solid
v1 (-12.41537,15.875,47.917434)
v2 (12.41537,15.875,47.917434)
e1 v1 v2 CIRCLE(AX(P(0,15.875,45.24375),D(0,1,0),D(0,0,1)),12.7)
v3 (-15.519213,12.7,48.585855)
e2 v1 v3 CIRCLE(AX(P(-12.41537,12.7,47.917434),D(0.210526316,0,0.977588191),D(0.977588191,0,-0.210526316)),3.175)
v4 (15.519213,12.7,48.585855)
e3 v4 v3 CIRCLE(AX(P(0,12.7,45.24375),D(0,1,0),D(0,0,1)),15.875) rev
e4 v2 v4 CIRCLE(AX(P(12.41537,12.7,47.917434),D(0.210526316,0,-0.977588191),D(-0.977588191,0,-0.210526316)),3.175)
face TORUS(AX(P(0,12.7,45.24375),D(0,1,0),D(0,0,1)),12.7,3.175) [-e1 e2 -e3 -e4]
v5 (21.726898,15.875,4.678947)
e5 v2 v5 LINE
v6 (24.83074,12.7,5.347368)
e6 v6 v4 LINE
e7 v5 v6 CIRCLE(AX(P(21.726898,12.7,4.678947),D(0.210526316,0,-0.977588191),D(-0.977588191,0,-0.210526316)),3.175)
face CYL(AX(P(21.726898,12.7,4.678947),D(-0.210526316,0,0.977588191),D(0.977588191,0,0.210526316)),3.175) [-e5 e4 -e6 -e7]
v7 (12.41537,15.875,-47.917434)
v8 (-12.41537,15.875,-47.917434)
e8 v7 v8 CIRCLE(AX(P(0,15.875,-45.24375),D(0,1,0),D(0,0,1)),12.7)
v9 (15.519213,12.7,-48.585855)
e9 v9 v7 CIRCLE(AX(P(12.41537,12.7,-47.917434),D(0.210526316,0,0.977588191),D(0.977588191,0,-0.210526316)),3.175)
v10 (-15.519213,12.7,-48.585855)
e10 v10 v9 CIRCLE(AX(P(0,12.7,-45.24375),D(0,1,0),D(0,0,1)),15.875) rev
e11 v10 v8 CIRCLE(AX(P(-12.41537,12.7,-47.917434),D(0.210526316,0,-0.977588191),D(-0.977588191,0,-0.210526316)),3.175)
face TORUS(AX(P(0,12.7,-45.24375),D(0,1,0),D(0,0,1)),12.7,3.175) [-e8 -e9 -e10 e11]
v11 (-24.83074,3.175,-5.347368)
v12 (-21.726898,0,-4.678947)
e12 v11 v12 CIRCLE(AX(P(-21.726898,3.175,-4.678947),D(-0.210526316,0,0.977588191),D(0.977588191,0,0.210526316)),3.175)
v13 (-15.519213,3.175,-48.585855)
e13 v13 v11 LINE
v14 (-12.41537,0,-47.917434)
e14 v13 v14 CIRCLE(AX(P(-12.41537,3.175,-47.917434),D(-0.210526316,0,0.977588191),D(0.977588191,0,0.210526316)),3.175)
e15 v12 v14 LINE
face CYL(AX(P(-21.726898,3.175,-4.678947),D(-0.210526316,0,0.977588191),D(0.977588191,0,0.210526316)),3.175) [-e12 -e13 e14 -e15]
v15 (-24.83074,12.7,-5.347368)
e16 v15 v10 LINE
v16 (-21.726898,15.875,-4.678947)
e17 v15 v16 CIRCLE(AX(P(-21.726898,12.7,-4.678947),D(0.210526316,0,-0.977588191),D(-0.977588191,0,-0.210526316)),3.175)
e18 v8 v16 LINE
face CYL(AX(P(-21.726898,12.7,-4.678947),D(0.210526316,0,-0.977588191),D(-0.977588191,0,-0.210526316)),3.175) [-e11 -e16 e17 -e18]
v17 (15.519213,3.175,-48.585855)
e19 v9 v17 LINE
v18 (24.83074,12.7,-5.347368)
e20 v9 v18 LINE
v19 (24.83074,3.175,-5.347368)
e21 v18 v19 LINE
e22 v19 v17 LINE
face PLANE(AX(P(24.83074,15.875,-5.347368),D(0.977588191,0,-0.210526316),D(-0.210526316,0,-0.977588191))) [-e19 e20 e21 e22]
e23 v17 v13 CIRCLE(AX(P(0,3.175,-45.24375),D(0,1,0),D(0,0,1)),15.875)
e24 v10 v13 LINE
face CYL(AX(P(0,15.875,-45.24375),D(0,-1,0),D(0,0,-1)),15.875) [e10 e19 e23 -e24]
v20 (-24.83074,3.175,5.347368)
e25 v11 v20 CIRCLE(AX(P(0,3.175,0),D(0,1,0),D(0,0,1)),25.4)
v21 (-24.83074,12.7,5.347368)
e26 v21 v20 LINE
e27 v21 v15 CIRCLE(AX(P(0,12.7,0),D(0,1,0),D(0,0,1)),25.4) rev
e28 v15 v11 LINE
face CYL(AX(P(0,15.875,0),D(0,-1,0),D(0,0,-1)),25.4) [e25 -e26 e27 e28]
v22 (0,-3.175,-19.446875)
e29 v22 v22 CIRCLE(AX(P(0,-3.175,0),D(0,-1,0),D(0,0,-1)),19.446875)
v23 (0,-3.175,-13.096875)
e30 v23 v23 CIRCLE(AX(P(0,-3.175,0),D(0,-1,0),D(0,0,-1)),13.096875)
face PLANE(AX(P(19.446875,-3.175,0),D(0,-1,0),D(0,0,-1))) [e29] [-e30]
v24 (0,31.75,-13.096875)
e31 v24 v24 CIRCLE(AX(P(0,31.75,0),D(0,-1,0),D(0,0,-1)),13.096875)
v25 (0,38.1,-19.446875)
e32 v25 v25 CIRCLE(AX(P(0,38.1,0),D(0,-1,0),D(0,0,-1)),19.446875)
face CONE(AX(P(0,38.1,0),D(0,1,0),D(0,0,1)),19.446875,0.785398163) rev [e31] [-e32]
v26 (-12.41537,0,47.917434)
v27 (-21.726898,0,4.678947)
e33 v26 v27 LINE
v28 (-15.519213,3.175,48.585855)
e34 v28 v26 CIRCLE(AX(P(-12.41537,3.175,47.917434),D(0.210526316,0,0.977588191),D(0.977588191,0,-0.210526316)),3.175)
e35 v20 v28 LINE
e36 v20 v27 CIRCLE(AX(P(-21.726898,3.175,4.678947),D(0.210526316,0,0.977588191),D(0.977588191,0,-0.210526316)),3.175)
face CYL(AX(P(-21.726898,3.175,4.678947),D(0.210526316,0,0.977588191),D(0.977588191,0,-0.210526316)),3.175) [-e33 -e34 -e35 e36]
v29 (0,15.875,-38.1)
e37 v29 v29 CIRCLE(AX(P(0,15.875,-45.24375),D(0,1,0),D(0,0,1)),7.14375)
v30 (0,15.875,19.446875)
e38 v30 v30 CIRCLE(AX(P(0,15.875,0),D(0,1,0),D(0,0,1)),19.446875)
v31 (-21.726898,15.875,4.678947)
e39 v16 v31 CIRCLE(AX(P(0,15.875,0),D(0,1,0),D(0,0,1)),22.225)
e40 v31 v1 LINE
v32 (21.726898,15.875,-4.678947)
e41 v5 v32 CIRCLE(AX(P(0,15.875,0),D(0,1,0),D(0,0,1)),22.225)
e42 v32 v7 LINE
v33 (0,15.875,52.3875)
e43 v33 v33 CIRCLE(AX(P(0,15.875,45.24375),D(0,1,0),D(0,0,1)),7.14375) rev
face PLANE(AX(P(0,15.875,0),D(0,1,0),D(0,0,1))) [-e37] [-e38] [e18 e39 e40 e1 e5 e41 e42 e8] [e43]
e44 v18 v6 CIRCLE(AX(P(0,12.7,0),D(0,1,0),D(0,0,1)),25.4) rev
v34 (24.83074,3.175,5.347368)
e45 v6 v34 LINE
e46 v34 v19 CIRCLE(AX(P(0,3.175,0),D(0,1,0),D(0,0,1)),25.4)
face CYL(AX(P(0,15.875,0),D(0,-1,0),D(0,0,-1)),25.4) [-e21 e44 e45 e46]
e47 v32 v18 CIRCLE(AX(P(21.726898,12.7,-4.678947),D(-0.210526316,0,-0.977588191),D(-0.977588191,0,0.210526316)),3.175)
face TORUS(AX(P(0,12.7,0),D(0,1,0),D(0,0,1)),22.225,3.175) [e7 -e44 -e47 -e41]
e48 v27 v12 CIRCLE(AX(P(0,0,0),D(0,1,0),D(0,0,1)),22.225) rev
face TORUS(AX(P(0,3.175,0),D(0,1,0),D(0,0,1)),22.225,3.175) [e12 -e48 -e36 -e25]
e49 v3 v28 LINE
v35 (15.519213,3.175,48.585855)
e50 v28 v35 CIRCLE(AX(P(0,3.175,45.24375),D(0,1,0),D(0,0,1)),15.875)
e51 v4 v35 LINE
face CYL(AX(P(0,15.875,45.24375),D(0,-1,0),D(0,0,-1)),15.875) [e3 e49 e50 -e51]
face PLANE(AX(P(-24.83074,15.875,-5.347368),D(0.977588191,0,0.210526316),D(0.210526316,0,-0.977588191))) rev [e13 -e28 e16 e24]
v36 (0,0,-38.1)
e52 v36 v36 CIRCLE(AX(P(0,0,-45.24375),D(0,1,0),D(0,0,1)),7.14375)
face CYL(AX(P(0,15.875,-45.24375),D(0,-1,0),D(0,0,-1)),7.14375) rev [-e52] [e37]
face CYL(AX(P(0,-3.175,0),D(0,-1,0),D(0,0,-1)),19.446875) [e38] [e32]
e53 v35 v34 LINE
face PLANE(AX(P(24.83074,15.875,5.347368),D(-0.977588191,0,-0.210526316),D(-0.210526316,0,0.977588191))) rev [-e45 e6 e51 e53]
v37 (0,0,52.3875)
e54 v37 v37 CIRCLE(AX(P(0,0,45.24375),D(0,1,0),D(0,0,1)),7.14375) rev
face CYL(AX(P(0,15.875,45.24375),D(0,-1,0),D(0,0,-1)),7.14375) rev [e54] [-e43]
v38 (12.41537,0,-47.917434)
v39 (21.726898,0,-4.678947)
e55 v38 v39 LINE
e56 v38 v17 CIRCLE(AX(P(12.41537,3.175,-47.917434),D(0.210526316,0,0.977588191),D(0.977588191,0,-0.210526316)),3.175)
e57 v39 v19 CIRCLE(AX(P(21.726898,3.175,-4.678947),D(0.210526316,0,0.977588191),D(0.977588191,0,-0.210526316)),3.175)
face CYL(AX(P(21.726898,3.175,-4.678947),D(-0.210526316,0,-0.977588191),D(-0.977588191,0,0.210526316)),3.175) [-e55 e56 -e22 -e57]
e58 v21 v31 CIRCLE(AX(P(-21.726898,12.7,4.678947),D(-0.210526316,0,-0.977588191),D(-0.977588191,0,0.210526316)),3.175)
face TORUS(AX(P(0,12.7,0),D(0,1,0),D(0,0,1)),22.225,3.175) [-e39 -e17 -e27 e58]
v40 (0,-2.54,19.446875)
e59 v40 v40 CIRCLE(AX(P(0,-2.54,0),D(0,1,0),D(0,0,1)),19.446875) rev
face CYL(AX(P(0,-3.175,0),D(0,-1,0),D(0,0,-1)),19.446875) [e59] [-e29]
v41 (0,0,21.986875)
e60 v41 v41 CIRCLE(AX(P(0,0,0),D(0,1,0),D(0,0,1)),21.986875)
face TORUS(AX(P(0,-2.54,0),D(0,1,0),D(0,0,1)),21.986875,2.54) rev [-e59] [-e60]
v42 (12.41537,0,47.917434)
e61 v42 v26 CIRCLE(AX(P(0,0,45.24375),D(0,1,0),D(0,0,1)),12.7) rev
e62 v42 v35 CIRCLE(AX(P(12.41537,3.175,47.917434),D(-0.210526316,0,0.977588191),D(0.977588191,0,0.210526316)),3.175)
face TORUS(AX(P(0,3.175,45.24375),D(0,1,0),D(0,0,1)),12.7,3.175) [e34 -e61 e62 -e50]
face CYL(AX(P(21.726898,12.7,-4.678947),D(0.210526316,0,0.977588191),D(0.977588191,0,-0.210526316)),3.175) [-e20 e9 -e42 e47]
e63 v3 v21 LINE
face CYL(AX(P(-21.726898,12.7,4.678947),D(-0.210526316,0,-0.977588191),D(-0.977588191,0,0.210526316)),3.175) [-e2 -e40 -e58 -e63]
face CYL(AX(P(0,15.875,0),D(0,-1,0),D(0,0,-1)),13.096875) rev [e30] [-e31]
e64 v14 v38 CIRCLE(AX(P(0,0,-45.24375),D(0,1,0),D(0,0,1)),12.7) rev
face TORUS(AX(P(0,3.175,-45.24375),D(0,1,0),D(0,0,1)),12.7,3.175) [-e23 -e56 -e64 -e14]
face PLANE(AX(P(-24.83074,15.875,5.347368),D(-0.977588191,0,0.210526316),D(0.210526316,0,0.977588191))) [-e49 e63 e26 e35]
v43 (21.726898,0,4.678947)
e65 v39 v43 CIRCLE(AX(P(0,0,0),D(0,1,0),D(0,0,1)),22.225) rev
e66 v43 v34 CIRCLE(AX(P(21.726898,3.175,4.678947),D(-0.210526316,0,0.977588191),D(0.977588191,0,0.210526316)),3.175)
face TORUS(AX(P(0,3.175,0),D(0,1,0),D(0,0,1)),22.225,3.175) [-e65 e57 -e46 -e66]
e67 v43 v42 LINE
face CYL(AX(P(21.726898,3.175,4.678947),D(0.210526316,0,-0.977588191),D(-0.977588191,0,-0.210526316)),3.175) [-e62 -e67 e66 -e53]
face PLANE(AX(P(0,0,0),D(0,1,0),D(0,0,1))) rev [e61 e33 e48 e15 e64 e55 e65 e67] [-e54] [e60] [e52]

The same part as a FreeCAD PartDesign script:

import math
import FreeCAD as App
import Part
import Sketcher

V = App.Vector
Q = App.Units.Quantity


def edges_at(feature, points):
    """Names of the edges that pass closest to the given points."""
    edges = feature.Shape.Edges
    near = lambda p: min(range(len(edges)), key=lambda i: edges[i].distToShape(Part.Vertex(*p))[0])
    return sorted({f"Edge{near(p) + 1}" for p in points})


def add_polygon(sketch, points):
    """Adds a closed chain of lines whose ends are joined by coincident constraints."""
    first, n = sketch.GeometryCount, len(points)
    for a, b in zip(points, points[1:] + points[:1]):
        sketch.addGeometry(Part.LineSegment(App.Vector(*a, 0), App.Vector(*b, 0)), False)
    for i in range(n):
        sketch.addConstraint(Sketcher.Constraint("Coincident", first + i, 2, first + (i + 1) % n, 1))

doc = App.newDocument("Part")
body = doc.addObject("PartDesign::Body", "Body")

# Sketch on XZ plane
sketch1 = body.newObject("Sketcher::SketchObject", "Sketch")
sketch1.AttachmentSupport = (doc.getObject("XZ_Plane"), [""])
sketch1.MapMode = "FlatFace"
sketch1.addGeometry(Part.ArcOfCircle(Part.Circle(V(0, 45.24375, 0), V(0, 0, 1), 15.875), math.radians(12.153197), math.radians(167.846803)), False)
sketch1.addGeometry(Part.LineSegment(V(15.519213, 48.585855, 0), V(24.83074, 5.347368, 0)), False)
sketch1.addGeometry(Part.ArcOfCircle(Part.Circle(V(0, 0, 0), V(0, 0, 1), 25.4), math.radians(-12.153197), math.radians(12.153197)), False)
sketch1.addGeometry(Part.LineSegment(V(24.83074, -5.347368, 0), V(15.519213, -48.585855, 0)), False)
sketch1.addGeometry(Part.ArcOfCircle(Part.Circle(V(0, -45.24375, 0), V(0, 0, 1), 15.875), math.radians(-167.846803), math.radians(-12.153197)), False)
sketch1.addGeometry(Part.LineSegment(V(-15.519213, -48.585855, 0), V(-24.83074, -5.347368, 0)), False)
sketch1.addGeometry(Part.ArcOfCircle(Part.Circle(V(0, 0, 0), V(0, 0, 1), 25.4), math.radians(167.846803), math.radians(192.153197)), False)
sketch1.addGeometry(Part.LineSegment(V(-24.83074, 5.347368, 0), V(-15.519213, 48.585855, 0)), False)
sketch1.addGeometry(Part.Circle(V(0, 45.24375, 0), V(0, 0, 1), 7.14375), False)
sketch1.addGeometry(Part.Circle(V(0, 0, 0), V(0, 0, 1), 13.096875), False)
sketch1.addGeometry(Part.Circle(V(0, -45.24375, 0), V(0, 0, 1), 7.14375), False)
sketch1.addConstraint(Sketcher.Constraint("Tangent", 0, 1, 1, 1))
sketch1.addConstraint(Sketcher.Constraint("Tangent", 1, 2, 2, 2))
sketch1.addConstraint(Sketcher.Constraint("Tangent", 2, 1, 3, 1))
sketch1.addConstraint(Sketcher.Constraint("Tangent", 3, 2, 4, 2))
sketch1.addConstraint(Sketcher.Constraint("Tangent", 4, 1, 5, 1))
sketch1.addConstraint(Sketcher.Constraint("Tangent", 5, 2, 6, 2))
sketch1.addConstraint(Sketcher.Constraint("Tangent", 6, 1, 7, 1))
sketch1.addConstraint(Sketcher.Constraint("Tangent", 7, 2, 0, 2))
sketch1.addConstraint(Sketcher.Constraint("Coincident", 2, 3, -1, 1))
sketch1.addConstraint(Sketcher.Constraint("Coincident", 6, 3, -1, 1))
sketch1.addConstraint(Sketcher.Constraint("Coincident", 9, 3, -1, 1))
sketch1.addConstraint(Sketcher.Constraint("Coincident", 8, 3, 0, 3))
sketch1.addConstraint(Sketcher.Constraint("Coincident", 10, 3, 4, 3))
sketch1.addConstraint(Sketcher.Constraint("Equal", 0, 4))
sketch1.addConstraint(Sketcher.Constraint("Equal", 2, 6))
sketch1.addConstraint(Sketcher.Constraint("Equal", 8, 10))
sketch1.addConstraint(Sketcher.Constraint("Symmetric", 0, 3, 4, 3, -1, 1))
sketch1.addConstraint(Sketcher.Constraint("PointOnObject", 0, 3, -2))
sketch1.addConstraint(Sketcher.Constraint("Radius", 2, Q("1 in")))
sketch1.addConstraint(Sketcher.Constraint("Diameter", 8, Q("0.5625 in")))
sketch1.addConstraint(Sketcher.Constraint("Diameter", 9, Q("1.03125 in")))
sketch1.addConstraint(Sketcher.Constraint("Radius", 0, Q("0.625 in")))
sketch1.addConstraint(Sketcher.Constraint("DistanceY", -1, 1, 0, 3, Q("1.78125 in")))
pad1 = body.newObject("PartDesign::Pad", "Pad")
pad1.Profile = sketch1
pad1.Length = Q("0.625 in")
pad1.Reversed = True

# Sketch on XY plane
sketch2 = body.newObject("Sketcher::SketchObject", "Sketch001")
sketch2.AttachmentSupport = (doc.getObject("XY_Plane"), [""])
sketch2.MapMode = "FlatFace"
add_polygon(sketch2, [(19.446875, 38.1), (13.096875, 31.75), (13.096875, -3.175), (19.446875, -3.175)])  # lines 0-3
sketch2.addConstraint(Sketcher.Constraint("Vertical", 1))
sketch2.addConstraint(Sketcher.Constraint("Horizontal", 2))
sketch2.addConstraint(Sketcher.Constraint("Vertical", 3))
sketch2.addConstraint(Sketcher.Constraint("Angle", 0, Q("-135 deg")))
sketch2.addConstraint(Sketcher.Constraint("DistanceX", 2, 1, 2, 2, Q("0.25 in")))
sketch2.addConstraint(Sketcher.Constraint("DistanceY", -1, 1, 3, 2, Q("1.5 in")))
sketch2.addConstraint(Sketcher.Constraint("DistanceY", 1, 2, 1, 1, Q("1.375 in")))
sketch2.addConstraint(Sketcher.Constraint("DistanceX", -1, 1, 0, 2, Q("0.515625 in")))
revolution = body.newObject("PartDesign::Revolution", "Revolution")
revolution.Profile = sketch2
revolution.ReferenceAxis = (sketch2, ["V_Axis"])
revolution.Angle = 360
doc.recompute()

fillet = body.newObject("PartDesign::Fillet", "Fillet")
fillet.Base = (revolution, edges_at(revolution, [(20.175, 0, 26.967), (25.4, 15.875, 0)]))
fillet.Radius = Q("0.125 in")
doc.recompute()

fillet2 = body.newObject("PartDesign::Fillet", "Fillet001")
fillet2.Base = (fillet, edges_at(fillet, [(-19.447, 0, 0)]))
fillet2.Radius = Q("0.1 in")

doc.recompute()
